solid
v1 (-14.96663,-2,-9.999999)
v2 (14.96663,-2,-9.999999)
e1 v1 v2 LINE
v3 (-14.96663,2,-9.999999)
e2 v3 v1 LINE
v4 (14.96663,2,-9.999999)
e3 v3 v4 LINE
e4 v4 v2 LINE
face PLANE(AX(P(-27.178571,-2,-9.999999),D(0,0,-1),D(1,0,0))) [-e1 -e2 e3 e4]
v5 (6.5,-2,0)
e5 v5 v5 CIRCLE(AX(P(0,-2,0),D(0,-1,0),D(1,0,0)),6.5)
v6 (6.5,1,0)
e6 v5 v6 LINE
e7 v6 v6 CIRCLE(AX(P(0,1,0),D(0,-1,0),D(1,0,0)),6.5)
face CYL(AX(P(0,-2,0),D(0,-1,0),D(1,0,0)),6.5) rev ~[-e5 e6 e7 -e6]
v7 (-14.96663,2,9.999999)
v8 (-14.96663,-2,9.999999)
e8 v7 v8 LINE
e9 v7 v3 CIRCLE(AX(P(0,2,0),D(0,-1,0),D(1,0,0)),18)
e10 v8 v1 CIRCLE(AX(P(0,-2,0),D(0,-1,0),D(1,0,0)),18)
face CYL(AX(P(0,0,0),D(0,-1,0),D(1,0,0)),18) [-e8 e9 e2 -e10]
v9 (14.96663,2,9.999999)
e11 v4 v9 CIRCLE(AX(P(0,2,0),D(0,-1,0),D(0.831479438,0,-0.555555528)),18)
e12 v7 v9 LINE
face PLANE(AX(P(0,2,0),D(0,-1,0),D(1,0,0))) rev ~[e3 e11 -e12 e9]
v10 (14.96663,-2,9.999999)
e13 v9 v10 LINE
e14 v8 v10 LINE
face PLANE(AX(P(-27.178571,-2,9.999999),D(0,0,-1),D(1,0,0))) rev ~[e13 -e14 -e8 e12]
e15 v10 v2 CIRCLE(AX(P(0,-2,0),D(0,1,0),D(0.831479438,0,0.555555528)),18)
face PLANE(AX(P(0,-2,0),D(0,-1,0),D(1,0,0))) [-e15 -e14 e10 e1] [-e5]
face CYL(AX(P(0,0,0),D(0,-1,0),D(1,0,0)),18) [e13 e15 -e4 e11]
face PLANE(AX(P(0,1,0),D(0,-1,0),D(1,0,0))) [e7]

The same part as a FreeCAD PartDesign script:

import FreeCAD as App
import Part
import Sketcher

V = App.Vector
Q = App.Units.Quantity

doc = App.newDocument("Part")
body = doc.addObject("PartDesign::Body", "Body")

sketch1 = body.newObject("Sketcher::SketchObject", "Sketch")
sketch1.AttachmentSupport = (doc.getObject("XZ_Plane"), [""])
sketch1.MapMode = "FlatFace"
sketch1.addGeometry(Part.Circle(V(0, 0, 0), V(0, 0, 1), 18), False)
sketch1.addConstraint([
    Sketcher.Constraint("Coincident", 0, 3, -1, 1),
    Sketcher.Constraint("Diameter", 0, Q("36 mm")),
])
pad1 = body.newObject("PartDesign::Pad", "Pad")
pad1.Profile = sketch1
pad1.Length = 4
pad1.Midplane = True

sketch2 = body.newObject("Sketcher::SketchObject", "Sketch001")
sketch2.AttachmentSupport = (doc.getObject("XZ_Plane"), [""])
sketch2.MapMode = "FlatFace"
sketch2.AttachmentOffset = App.Placement(V(0, 0, 2), App.Rotation())
sketch2.addGeometry(Part.Circle(V(0, 0, 0), V(0, 0, 1), 6), False)
sketch2.addConstraint([
    Sketcher.Constraint("Coincident", 0, 3, -1, 1),
    Sketcher.Constraint("Diameter", 0, Q("13 mm")),
])
pocket1 = body.newObject("PartDesign::Pocket", "Pocket")
pocket1.Profile = sketch2
pocket1.Length = 3

sketch3 = body.newObject("Sketcher::SketchObject", "Sketch002")
sketch3.AttachmentSupport = (doc.getObject("XZ_Plane"), [""])
sketch3.MapMode = "FlatFace"
sketch3.AttachmentOffset = App.Placement(V(0, 0, 2), App.Rotation())
sketch3.addGeometry([
    Part.LineSegment(V(-27, 18, 0), V(-27, 10, 0)),
    Part.LineSegment(V(-27, 10, 0), V(19, 10, 0)),
    Part.LineSegment(V(19, 10, 0), V(19, 18, 0)),
    Part.LineSegment(V(19, 18, 0), V(-27, 18, 0)),
    Part.LineSegment(V(-27, -10, 0), V(-27, -18, 0)),
    Part.LineSegment(V(-27, -18, 0), V(19, -18, 0)),
    Part.LineSegment(V(19, -18, 0), V(19, -10, 0)),
    Part.LineSegment(V(19, -10, 0), V(-27, -10, 0)),
], False)
sketch3.addConstraint([
    Sketcher.Constraint("Coincident", 0, 2, 1, 1),
    Sketcher.Constraint("Coincident", 1, 2, 2, 1),
    Sketcher.Constraint("Coincident", 2, 2, 3, 1),
    Sketcher.Constraint("Coincident", 3, 2, 0, 1),
    Sketcher.Constraint("Coincident", 4, 2, 5, 1),
    Sketcher.Constraint("Coincident", 5, 2, 6, 1),
    Sketcher.Constraint("Coincident", 6, 2, 7, 1),
    Sketcher.Constraint("Coincident", 7, 2, 4, 1),
    Sketcher.Constraint("Vertical", 0),
    Sketcher.Constraint("Horizontal", 1),
    Sketcher.Constraint("Vertical", 2),
    Sketcher.Constraint("Horizontal", 3),
    Sketcher.Constraint("Vertical", 4),
    Sketcher.Constraint("Horizontal", 5),
    Sketcher.Constraint("Vertical", 6),
    Sketcher.Constraint("Horizontal", 7),
    Sketcher.Constraint("Symmetric", 3, 2, 4, 2, -1),
    Sketcher.Constraint("Symmetric", 1, 2, 6, 2, -1),
    Sketcher.Constraint("DistanceX", 1, 1, 1, 2, Q("46 mm")),
    Sketcher.Constraint("DistanceY", -1, 1, 0, 2, Q("9.999999 mm")),
    Sketcher.Constraint("DistanceY", 0, 2, 0, 1, Q("8.283501 mm")),
    Sketcher.Constraint("DistanceX", 0, 2, -1, 1, Q("27.178571 mm")),
])
pocket2 = body.newObject("PartDesign::Pocket", "Pocket001")
pocket2.Profile = sketch3
pocket2.Length = 25

doc.recompute()
